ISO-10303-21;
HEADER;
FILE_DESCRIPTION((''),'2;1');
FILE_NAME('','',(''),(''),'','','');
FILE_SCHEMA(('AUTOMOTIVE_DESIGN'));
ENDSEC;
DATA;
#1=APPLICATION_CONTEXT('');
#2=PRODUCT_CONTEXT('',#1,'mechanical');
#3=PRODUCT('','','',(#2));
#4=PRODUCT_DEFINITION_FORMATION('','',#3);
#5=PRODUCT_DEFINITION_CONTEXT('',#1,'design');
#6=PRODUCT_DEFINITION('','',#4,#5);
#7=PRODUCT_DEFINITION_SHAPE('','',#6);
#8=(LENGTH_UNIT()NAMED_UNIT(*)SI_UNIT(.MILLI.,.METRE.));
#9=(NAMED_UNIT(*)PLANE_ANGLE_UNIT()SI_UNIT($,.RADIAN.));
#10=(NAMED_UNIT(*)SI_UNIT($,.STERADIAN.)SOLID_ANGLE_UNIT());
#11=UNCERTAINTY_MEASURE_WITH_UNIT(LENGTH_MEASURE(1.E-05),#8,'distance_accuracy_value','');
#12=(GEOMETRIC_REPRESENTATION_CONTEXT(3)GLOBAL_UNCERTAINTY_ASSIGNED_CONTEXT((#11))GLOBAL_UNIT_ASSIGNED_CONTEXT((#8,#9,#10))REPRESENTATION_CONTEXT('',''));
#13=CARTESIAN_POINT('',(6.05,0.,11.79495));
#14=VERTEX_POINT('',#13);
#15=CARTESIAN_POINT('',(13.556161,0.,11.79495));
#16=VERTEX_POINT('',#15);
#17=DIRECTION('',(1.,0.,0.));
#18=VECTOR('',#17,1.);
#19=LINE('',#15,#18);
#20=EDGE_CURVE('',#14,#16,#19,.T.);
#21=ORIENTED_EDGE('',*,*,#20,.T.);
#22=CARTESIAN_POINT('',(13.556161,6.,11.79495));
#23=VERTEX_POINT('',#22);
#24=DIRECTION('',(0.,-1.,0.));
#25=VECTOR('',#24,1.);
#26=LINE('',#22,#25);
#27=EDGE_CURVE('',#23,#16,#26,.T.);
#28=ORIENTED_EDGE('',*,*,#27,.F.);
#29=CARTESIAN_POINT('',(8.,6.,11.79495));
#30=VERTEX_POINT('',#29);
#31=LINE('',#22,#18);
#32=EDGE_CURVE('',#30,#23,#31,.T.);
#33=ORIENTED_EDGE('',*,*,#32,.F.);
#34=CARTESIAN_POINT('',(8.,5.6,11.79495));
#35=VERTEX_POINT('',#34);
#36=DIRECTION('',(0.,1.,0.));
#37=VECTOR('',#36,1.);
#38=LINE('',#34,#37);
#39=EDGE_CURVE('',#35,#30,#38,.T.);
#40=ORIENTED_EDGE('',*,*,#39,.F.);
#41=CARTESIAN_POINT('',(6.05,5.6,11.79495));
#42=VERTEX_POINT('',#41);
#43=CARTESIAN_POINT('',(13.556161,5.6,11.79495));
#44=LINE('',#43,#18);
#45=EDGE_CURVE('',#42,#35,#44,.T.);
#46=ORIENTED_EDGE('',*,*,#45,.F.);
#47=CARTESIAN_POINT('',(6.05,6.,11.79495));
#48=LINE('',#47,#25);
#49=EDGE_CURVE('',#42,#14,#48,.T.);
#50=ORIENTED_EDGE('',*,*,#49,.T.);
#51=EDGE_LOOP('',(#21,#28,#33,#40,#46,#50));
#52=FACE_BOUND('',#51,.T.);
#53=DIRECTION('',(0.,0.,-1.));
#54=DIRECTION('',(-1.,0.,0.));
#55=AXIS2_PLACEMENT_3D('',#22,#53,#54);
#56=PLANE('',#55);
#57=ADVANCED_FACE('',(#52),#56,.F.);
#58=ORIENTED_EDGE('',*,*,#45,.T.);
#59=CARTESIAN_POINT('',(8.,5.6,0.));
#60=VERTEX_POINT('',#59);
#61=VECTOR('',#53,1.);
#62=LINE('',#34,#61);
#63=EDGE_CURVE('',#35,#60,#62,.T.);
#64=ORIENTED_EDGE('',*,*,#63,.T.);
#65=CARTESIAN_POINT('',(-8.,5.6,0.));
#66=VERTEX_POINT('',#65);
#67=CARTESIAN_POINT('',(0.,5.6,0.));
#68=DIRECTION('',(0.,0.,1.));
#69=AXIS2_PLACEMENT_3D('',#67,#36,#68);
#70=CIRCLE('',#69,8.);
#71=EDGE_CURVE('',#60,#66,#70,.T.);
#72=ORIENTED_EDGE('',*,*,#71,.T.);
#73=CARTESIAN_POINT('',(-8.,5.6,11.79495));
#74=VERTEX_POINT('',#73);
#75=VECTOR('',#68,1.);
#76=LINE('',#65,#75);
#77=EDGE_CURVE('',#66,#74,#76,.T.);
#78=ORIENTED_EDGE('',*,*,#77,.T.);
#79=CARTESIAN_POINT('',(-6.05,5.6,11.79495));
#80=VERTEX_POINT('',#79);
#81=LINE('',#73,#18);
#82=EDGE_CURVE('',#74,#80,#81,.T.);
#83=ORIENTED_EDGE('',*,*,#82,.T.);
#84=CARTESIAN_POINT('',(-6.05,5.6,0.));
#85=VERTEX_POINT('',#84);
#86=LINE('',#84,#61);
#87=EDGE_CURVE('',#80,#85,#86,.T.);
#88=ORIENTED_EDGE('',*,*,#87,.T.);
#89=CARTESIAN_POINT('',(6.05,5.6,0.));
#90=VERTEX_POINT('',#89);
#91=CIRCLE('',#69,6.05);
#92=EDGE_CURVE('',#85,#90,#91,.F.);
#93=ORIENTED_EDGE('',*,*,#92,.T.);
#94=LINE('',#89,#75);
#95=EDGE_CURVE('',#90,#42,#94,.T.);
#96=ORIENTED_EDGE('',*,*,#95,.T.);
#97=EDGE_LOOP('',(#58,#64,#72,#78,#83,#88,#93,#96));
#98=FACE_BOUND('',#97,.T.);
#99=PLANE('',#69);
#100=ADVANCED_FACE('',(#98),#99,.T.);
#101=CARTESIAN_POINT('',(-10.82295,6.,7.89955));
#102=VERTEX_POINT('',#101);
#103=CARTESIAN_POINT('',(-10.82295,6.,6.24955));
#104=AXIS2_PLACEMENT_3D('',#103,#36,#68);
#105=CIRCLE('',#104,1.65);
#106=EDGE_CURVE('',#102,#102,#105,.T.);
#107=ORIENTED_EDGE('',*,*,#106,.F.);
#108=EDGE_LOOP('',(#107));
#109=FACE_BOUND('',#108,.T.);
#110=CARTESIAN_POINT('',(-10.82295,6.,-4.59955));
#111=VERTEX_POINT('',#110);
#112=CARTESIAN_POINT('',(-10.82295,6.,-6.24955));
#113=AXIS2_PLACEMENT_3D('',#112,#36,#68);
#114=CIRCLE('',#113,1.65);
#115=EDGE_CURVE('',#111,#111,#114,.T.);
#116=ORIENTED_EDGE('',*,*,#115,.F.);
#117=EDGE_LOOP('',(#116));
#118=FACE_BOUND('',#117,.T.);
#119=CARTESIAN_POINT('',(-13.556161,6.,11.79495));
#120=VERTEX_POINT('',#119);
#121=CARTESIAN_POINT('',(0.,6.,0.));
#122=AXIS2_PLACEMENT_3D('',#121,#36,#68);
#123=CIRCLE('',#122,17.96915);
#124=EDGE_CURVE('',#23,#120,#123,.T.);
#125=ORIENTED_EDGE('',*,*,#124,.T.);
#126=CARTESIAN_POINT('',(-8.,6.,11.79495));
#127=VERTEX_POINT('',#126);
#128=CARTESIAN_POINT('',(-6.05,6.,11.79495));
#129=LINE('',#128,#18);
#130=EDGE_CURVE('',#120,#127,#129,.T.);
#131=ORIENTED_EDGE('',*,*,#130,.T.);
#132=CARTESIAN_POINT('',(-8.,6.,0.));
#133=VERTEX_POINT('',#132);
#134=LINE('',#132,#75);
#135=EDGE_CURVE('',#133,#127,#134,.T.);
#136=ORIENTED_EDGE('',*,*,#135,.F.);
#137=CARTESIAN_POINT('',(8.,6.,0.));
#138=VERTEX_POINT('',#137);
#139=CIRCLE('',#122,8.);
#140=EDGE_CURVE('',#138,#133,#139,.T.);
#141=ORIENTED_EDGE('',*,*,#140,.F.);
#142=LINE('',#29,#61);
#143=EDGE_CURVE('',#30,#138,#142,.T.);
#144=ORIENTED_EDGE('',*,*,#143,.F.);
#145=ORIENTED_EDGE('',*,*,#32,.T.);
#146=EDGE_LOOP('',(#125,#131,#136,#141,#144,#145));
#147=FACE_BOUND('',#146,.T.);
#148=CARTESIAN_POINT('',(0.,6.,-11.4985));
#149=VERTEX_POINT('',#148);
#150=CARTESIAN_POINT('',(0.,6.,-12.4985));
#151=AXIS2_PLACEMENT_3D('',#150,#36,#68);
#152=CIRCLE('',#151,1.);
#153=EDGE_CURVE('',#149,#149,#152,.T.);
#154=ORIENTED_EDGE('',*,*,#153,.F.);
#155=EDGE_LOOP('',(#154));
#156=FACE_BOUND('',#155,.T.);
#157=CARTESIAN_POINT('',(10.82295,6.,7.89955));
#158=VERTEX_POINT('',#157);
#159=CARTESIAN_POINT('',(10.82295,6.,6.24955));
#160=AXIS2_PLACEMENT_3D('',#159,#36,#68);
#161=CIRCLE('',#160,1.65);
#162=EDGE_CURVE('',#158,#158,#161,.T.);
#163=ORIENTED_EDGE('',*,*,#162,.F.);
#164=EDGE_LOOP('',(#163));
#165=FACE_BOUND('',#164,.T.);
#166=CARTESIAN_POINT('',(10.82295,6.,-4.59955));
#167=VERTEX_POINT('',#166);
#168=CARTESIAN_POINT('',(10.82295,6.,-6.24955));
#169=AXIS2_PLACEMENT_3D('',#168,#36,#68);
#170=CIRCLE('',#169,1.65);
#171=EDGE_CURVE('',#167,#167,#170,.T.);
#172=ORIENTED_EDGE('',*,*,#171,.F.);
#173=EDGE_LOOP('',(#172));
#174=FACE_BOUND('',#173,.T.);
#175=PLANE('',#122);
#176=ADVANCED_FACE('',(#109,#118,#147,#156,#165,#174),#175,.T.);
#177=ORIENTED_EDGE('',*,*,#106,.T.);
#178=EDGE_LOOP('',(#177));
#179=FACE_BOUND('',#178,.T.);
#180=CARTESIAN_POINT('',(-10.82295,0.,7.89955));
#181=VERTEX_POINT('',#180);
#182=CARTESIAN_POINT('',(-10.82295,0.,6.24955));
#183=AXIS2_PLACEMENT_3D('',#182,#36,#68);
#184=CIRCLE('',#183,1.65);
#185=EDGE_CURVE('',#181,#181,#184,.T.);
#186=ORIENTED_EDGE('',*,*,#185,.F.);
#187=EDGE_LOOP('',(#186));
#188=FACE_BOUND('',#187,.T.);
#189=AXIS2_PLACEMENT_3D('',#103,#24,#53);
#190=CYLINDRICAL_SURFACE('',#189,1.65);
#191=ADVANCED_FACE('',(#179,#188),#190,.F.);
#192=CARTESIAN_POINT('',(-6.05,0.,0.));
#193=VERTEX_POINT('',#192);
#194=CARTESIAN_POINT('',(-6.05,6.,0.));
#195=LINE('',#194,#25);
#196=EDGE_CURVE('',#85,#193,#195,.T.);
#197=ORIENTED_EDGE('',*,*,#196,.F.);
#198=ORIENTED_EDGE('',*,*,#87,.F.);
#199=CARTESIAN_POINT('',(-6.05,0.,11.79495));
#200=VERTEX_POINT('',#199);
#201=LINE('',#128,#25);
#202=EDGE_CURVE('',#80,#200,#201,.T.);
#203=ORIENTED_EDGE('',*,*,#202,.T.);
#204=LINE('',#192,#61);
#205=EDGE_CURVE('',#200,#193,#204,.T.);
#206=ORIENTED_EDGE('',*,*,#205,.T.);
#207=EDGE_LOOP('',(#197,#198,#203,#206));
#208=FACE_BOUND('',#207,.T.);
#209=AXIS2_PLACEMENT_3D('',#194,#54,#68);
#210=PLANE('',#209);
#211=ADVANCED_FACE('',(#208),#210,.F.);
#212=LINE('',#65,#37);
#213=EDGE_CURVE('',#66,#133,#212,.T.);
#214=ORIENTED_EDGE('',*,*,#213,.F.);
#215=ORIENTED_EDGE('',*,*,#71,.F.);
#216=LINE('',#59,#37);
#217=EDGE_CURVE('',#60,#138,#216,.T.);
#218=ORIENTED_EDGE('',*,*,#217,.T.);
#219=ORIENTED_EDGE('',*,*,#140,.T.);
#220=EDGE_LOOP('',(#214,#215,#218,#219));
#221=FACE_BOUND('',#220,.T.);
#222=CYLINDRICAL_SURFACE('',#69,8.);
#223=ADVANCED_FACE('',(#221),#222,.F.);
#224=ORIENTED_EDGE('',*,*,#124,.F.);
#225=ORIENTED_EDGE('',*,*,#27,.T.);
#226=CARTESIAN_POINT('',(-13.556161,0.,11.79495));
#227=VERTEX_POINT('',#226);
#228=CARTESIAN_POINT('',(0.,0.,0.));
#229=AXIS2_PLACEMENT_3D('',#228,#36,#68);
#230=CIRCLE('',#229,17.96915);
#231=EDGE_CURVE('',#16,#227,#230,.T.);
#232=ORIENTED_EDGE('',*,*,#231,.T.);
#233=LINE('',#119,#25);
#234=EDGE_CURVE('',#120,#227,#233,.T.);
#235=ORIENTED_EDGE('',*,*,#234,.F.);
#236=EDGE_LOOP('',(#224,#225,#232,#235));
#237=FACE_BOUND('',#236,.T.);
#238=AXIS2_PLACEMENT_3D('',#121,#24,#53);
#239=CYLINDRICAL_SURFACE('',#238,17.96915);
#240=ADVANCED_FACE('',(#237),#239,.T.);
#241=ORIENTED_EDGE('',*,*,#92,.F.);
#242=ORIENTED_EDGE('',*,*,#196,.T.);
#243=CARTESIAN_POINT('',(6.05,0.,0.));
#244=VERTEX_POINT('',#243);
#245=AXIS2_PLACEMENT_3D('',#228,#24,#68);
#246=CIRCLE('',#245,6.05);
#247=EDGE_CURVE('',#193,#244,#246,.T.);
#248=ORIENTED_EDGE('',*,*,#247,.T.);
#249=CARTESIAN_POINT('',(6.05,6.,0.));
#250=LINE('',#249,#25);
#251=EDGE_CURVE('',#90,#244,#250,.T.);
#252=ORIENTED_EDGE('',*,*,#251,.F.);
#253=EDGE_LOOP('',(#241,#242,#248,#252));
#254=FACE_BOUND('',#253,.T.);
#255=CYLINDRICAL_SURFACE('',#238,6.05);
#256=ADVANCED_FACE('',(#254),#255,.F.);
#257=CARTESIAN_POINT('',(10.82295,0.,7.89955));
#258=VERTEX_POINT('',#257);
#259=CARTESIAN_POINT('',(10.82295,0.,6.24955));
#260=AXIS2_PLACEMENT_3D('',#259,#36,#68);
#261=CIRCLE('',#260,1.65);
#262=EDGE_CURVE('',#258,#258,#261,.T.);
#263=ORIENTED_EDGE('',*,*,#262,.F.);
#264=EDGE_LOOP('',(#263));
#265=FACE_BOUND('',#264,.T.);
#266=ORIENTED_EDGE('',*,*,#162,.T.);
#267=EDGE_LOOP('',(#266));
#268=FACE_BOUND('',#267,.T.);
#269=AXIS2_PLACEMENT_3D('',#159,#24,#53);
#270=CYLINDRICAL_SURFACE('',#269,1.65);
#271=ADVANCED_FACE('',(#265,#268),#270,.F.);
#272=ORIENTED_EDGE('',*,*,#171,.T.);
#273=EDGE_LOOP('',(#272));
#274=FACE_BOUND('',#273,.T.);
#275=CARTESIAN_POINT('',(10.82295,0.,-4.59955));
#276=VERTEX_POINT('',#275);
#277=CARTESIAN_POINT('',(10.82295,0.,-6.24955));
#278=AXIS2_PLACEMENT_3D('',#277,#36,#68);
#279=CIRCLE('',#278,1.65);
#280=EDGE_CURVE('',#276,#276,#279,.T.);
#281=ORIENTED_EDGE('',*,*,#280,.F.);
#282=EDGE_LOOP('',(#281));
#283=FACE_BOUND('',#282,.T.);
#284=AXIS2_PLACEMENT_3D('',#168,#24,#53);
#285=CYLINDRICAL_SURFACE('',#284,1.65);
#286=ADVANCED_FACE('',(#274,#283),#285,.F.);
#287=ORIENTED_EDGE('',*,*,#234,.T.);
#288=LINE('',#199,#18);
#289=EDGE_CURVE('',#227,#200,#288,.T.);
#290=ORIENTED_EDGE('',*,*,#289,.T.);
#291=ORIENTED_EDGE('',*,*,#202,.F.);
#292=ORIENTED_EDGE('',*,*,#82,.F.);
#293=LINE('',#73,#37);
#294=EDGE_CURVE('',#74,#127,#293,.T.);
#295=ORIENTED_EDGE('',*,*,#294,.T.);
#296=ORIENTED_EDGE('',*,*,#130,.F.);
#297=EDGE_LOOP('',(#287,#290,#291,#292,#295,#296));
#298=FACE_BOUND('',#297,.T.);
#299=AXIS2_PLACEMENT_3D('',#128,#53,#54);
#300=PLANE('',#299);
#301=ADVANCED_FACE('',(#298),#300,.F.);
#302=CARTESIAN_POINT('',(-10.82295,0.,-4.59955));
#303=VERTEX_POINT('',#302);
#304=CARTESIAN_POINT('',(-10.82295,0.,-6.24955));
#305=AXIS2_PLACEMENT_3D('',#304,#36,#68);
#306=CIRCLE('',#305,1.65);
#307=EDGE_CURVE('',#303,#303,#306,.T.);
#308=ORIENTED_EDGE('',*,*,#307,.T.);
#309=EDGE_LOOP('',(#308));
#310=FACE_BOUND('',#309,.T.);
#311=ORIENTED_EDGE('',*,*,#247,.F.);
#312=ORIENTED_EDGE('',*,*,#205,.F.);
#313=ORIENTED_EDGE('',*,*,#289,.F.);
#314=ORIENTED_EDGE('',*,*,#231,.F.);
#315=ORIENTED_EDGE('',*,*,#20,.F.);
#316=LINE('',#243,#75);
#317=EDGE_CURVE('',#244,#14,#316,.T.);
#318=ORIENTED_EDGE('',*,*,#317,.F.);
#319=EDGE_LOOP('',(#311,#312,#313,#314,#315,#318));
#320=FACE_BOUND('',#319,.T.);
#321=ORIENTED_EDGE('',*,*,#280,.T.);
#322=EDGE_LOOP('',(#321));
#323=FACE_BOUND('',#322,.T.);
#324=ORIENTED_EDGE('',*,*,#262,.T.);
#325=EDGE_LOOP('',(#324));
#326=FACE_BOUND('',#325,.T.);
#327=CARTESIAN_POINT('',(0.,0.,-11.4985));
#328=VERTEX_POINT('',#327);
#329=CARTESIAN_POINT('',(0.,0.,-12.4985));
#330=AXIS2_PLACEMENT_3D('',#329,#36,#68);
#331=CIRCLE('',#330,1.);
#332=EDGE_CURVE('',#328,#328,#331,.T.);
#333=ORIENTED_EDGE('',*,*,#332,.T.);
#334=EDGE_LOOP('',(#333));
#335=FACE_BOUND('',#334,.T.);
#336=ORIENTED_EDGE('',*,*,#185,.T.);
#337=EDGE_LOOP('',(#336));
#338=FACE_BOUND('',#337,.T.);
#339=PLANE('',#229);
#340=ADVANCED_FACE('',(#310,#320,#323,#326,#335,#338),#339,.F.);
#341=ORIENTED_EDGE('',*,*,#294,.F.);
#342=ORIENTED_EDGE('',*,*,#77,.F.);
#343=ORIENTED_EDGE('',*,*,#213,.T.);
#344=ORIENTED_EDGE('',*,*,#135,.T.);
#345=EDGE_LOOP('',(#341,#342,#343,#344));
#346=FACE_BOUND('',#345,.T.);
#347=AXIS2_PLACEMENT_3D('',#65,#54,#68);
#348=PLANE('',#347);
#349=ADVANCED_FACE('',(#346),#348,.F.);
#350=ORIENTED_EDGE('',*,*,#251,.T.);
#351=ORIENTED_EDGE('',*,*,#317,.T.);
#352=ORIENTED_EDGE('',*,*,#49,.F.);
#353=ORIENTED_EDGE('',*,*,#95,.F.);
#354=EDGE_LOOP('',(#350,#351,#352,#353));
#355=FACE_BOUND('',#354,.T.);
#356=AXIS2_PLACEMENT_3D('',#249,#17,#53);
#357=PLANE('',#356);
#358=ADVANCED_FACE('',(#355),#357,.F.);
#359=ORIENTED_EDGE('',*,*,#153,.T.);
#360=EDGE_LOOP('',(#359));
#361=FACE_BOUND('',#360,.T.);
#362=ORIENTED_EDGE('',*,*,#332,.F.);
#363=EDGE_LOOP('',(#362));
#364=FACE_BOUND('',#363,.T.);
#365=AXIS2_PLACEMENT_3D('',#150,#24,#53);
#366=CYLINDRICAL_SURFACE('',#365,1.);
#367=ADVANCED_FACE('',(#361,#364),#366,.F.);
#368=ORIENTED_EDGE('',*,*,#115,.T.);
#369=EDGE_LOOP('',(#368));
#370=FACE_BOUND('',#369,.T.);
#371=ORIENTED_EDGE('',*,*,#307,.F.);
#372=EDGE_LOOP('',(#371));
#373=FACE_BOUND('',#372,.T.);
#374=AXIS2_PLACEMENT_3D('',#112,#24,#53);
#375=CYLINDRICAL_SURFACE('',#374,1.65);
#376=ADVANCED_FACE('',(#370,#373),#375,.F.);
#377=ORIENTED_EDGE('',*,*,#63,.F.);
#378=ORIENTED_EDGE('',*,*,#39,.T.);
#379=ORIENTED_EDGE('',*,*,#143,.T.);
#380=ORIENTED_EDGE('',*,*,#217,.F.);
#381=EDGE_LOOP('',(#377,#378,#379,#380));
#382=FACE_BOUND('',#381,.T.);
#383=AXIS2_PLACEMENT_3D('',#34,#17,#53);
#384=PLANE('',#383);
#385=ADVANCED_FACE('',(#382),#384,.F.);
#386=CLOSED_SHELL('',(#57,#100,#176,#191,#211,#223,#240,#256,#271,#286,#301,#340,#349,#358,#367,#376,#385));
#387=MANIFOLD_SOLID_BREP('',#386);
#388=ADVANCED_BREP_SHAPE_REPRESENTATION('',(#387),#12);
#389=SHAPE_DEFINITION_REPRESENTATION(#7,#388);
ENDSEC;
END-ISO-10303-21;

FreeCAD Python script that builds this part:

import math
import FreeCAD as App
import Part
import Sketcher
Q = App.Units.Quantity

doc = App.newDocument("Part")
body = doc.addObject("PartDesign::Body", "Body")

# Sketch on XZ plane
sketch1 = body.newObject("Sketcher::SketchObject", "Sketch")
sketch1.AttachmentSupport = (doc.getObject("XZ_Plane"), [""])
sketch1.MapMode = "FlatFace"
sketch1.addGeometry(Part.LineSegment(App.Vector(6.05, 11.79495, 0), App.Vector(13.556161, 11.79495, 0)), False)
sketch1.addGeometry(Part.ArcOfCircle(Part.Circle(App.Vector(0, 0, 0), App.Vector(0, 0, 1), 17.96915), math.radians(138.974109), math.radians(401.025891)), False)
sketch1.addGeometry(Part.LineSegment(App.Vector(-13.556161, 11.79495, 0), App.Vector(-6.05, 11.79495, 0)), False)
sketch1.addGeometry(Part.LineSegment(App.Vector(-6.05, 11.79495, 0), App.Vector(-6.05, 0, 0)), False)
sketch1.addGeometry(Part.ArcOfCircle(Part.Circle(App.Vector(0, 0, 0), App.Vector(0, 0, 1), 6.05), math.radians(180), math.radians(360)), False)
sketch1.addGeometry(Part.LineSegment(App.Vector(6.05, 0, 0), App.Vector(6.05, 11.79495, 0)), False)
sketch1.addGeometry(Part.Circle(App.Vector(10.82295, 6.24955, 0), App.Vector(0, 0, 1), 1.65), False)
sketch1.addGeometry(Part.Circle(App.Vector(-10.82295, 6.24955, 0), App.Vector(0, 0, 1), 1.65), False)
sketch1.addGeometry(Part.Circle(App.Vector(10.82295, -6.24955, 0), App.Vector(0, 0, 1), 1.65), False)
sketch1.addGeometry(Part.Circle(App.Vector(0, -12.4985, 0), App.Vector(0, 0, 1), 1), False)
sketch1.addGeometry(Part.Circle(App.Vector(-10.82295, -6.24955, 0), App.Vector(0, 0, 1), 1.65), False)
sketch1.addConstraint(Sketcher.Constraint("Coincident", 0, 2, 1, 2))
sketch1.addConstraint(Sketcher.Constraint("Coincident", 1, 1, 2, 1))
sketch1.addConstraint(Sketcher.Constraint("Coincident", 2, 2, 3, 1))
sketch1.addConstraint(Sketcher.Constraint("Tangent", 3, 2, 4, 1))
sketch1.addConstraint(Sketcher.Constraint("Tangent", 4, 2, 5, 1))
sketch1.addConstraint(Sketcher.Constraint("Coincident", 5, 2, 0, 1))
sketch1.addConstraint(Sketcher.Constraint("Horizontal", 0))
sketch1.addConstraint(Sketcher.Constraint("Horizontal", 2))
sketch1.addConstraint(Sketcher.Constraint("Vertical", 3))
sketch1.addConstraint(Sketcher.Constraint("Vertical", 5))
sketch1.addConstraint(Sketcher.Constraint("Coincident", 1, 3, -1, 1))
sketch1.addConstraint(Sketcher.Constraint("Coincident", 4, 3, -1, 1))
sketch1.addConstraint(Sketcher.Constraint("Equal", 6, 7))
sketch1.addConstraint(Sketcher.Constraint("Equal", 7, 8))
sketch1.addConstraint(Sketcher.Constraint("Equal", 8, 10))
sketch1.addConstraint(Sketcher.Constraint("Symmetric", 7, 3, 8, 3, -1, 1))
sketch1.addConstraint(Sketcher.Constraint("Symmetric", 6, 3, 10, 3, -1, 1))
sketch1.addConstraint(Sketcher.Constraint("Symmetric", 6, 3, 7, 3, -2))
sketch1.addConstraint(Sketcher.Constraint("PointOnObject", 9, 3, -2))
sketch1.addConstraint(Sketcher.Constraint("Horizontal", 0, 2, 1, 1))
sketch1.addConstraint(Sketcher.Constraint("Diameter", 9, Q("2 mm")))
sketch1.addConstraint(Sketcher.Constraint("Diameter", 6, Q("3.3 mm")))
sketch1.addConstraint(Sketcher.Constraint("Radius", 4, Q("6.05 mm")))
sketch1.addConstraint(Sketcher.Constraint("Radius", 1, Q("17.96915 mm")))
sketch1.addConstraint(Sketcher.Constraint("DistanceX", 0, 1, 0, 2, Q("7.506161 mm")))
sketch1.addConstraint(Sketcher.Constraint("DistanceY", 9, 3, -1, 1, Q("12.4985 mm")))
sketch1.addConstraint(Sketcher.Constraint("DistanceX", 7, 3, 6, 3, Q("21.6459 mm")))
sketch1.addConstraint(Sketcher.Constraint("DistanceY", 8, 3, 6, 3, Q("12.4991 mm")))
pad1 = body.newObject("PartDesign::Pad", "Pad")
pad1.Profile = sketch1
pad1.Length = 6
pad1.Reversed = True

# Sketch on XZ plane
sketch2 = body.newObject("Sketcher::SketchObject", "Sketch001")
sketch2.AttachmentSupport = (doc.getObject("XZ_Plane"), [""])
sketch2.MapMode = "FlatFace"
sketch2.AttachmentOffset = App.Placement(App.Vector(0, 0, -6), App.Rotation())
sketch2.addGeometry(Part.LineSegment(App.Vector(-8, 0, 0), App.Vector(-8, 11.79495, 0)), False)
sketch2.addGeometry(Part.LineSegment(App.Vector(-8, 11.79495, 0), App.Vector(8, 11.79495, 0)), False)
sketch2.addGeometry(Part.LineSegment(App.Vector(8, 11.79495, 0), App.Vector(8, 0, 0)), False)
sketch2.addGeometry(Part.ArcOfCircle(Part.Circle(App.Vector(0, 0, 0), App.Vector(0, 0, 1), 8), math.radians(180), math.radians(360)), False)
sketch2.addConstraint(Sketcher.Constraint("Coincident", 0, 2, 1, 1))
sketch2.addConstraint(Sketcher.Constraint("Coincident", 1, 2, 2, 1))
sketch2.addConstraint(Sketcher.Constraint("Tangent", 2, 2, 3, 2))
sketch2.addConstraint(Sketcher.Constraint("Tangent", 3, 1, 0, 1))
sketch2.addConstraint(Sketcher.Constraint("Vertical", 0))
sketch2.addConstraint(Sketcher.Constraint("Horizontal", 1))
sketch2.addConstraint(Sketcher.Constraint("Vertical", 2))
sketch2.addConstraint(Sketcher.Constraint("Coincident", 3, 3, -1, 1))
sketch2.addConstraint(Sketcher.Constraint("Radius", 3, Q("8 mm")))
sketch2.addConstraint(Sketcher.Constraint("DistanceY", 0, 1, 0, 2, Q("11.79495 mm")))
pocket1 = body.newObject("PartDesign::Pocket", "Pocket")
pocket1.Profile = sketch2
pocket1.Length = 0.4
pocket1.Reversed = True

doc.recompute()
